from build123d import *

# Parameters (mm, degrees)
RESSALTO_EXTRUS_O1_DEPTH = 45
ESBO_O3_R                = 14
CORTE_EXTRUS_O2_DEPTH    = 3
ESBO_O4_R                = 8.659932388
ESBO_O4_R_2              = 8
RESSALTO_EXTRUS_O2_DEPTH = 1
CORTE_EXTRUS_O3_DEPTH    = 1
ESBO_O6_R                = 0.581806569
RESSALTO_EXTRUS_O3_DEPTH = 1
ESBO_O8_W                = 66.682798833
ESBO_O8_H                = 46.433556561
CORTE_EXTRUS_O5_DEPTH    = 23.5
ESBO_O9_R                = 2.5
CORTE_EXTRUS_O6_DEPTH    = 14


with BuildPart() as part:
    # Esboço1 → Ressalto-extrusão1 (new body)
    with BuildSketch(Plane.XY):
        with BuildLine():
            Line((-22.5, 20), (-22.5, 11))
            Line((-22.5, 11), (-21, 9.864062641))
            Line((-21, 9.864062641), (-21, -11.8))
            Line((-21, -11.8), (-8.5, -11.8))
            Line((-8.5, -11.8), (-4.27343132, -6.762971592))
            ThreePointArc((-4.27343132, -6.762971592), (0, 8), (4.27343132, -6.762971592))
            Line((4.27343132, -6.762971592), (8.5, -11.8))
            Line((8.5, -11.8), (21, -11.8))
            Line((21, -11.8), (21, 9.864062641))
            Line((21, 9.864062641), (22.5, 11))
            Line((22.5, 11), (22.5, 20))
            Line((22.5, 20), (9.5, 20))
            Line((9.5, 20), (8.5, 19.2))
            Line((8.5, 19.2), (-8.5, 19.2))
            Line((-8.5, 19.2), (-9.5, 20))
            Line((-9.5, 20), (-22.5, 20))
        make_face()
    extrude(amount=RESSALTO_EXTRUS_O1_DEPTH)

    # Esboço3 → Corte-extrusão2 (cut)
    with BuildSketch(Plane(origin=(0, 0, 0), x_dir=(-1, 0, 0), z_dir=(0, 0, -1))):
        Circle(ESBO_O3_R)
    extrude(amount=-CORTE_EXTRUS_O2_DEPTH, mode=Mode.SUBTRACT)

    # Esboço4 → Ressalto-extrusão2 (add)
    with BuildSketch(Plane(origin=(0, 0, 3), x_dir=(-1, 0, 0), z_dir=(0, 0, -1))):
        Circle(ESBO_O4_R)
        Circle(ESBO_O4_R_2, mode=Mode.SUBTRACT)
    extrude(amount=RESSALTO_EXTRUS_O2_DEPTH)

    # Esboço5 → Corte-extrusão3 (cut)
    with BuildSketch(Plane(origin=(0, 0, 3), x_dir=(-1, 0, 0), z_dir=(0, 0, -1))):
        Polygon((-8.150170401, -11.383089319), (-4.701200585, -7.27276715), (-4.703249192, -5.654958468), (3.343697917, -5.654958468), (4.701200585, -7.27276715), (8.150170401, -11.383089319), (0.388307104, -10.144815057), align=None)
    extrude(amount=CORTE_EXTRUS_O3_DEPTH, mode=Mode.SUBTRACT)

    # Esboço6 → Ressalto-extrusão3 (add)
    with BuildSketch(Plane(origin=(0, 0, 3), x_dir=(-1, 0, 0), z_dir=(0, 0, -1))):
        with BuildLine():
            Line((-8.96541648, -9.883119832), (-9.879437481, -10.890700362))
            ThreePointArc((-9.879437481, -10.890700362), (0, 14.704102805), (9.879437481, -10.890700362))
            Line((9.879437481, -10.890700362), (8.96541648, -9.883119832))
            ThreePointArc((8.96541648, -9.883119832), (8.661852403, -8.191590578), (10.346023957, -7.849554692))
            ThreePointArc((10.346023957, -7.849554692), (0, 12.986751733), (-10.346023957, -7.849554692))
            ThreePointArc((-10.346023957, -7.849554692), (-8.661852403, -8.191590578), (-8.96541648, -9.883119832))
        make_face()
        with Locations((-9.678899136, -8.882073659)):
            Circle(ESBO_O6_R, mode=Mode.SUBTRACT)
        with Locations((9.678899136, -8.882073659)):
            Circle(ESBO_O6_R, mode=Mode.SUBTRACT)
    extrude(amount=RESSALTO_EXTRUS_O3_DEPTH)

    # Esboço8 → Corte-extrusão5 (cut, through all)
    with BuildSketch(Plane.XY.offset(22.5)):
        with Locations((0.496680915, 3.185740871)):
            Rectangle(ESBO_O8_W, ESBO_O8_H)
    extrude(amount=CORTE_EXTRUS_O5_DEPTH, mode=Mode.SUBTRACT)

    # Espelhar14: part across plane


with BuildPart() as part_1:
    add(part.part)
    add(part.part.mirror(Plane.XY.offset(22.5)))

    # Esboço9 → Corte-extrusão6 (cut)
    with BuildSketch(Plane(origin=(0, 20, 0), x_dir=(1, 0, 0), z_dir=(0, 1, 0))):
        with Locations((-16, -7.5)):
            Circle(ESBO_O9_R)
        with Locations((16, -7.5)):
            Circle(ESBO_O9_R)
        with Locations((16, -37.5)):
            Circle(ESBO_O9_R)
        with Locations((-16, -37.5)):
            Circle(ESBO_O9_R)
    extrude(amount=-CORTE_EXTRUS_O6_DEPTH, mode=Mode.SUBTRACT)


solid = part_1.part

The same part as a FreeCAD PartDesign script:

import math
import FreeCAD as App
import Part
import Sketcher
from FreeCAD import Vector
Q = App.Units.Quantity

doc = App.newDocument("Part")
body = doc.addObject("PartDesign::Body", "Body")

# Sketch on XY plane
sketch1 = body.newObject("Sketcher::SketchObject", "Sketch")
sketch1.AttachmentSupport = (doc.getObject("XY_Plane"), [""])
sketch1.MapMode = "FlatFace"
sketch1.addGeometry(Part.LineSegment(Vector(-22.5, 20, 0), Vector(-22.5, 11, 0)), False)
sketch1.addGeometry(Part.LineSegment(Vector(-22.5, 11, 0), Vector(-21, 9.864063, 0)), False)
sketch1.addGeometry(Part.LineSegment(Vector(-21, 9.864063, 0), Vector(-21, -11.8, 0)), False)
sketch1.addGeometry(Part.LineSegment(Vector(-21, -11.8, 0), Vector(-8.5, -11.8, 0)), False)
sketch1.addGeometry(Part.LineSegment(Vector(-8.5, -11.8, 0), Vector(-4.273431, -6.762972, 0)), False)
sketch1.addGeometry(Part.ArcOfCircle(Part.Circle(Vector(0, 0, 0), Vector(0, 0, 1), 8), math.radians(-57.711755), math.radians(237.711755)), False)
sketch1.addGeometry(Part.LineSegment(Vector(4.273431, -6.762972, 0), Vector(8.5, -11.8, 0)), False)
sketch1.addGeometry(Part.LineSegment(Vector(8.5, -11.8, 0), Vector(21, -11.8, 0)), False)
sketch1.addGeometry(Part.LineSegment(Vector(21, -11.8, 0), Vector(21, 9.864063, 0)), False)
sketch1.addGeometry(Part.LineSegment(Vector(21, 9.864063, 0), Vector(22.5, 11, 0)), False)
sketch1.addGeometry(Part.LineSegment(Vector(22.5, 11, 0), Vector(22.5, 20, 0)), False)
sketch1.addGeometry(Part.LineSegment(Vector(22.5, 20, 0), Vector(9.5, 20, 0)), False)
sketch1.addGeometry(Part.LineSegment(Vector(9.5, 20, 0), Vector(8.5, 19.2, 0)), False)
sketch1.addGeometry(Part.LineSegment(Vector(8.5, 19.2, 0), Vector(-8.5, 19.2, 0)), False)
sketch1.addGeometry(Part.LineSegment(Vector(-8.5, 19.2, 0), Vector(-9.5, 20, 0)), False)
sketch1.addGeometry(Part.LineSegment(Vector(-9.5, 20, 0), Vector(-22.5, 20, 0)), False)
sketch1.addConstraint(Sketcher.Constraint("Coincident", 0, 2, 1, 1))
sketch1.addConstraint(Sketcher.Constraint("Coincident", 1, 2, 2, 1))
sketch1.addConstraint(Sketcher.Constraint("Coincident", 2, 2, 3, 1))
sketch1.addConstraint(Sketcher.Constraint("Coincident", 3, 2, 4, 1))
sketch1.addConstraint(Sketcher.Constraint("Coincident", 4, 2, 5, 2))
sketch1.addConstraint(Sketcher.Constraint("Coincident", 5, 1, 6, 1))
sketch1.addConstraint(Sketcher.Constraint("Coincident", 6, 2, 7, 1))
sketch1.addConstraint(Sketcher.Constraint("Coincident", 7, 2, 8, 1))
sketch1.addConstraint(Sketcher.Constraint("Coincident", 8, 2, 9, 1))
sketch1.addConstraint(Sketcher.Constraint("Coincident", 9, 2, 10, 1))
sketch1.addConstraint(Sketcher.Constraint("Coincident", 10, 2, 11, 1))
sketch1.addConstraint(Sketcher.Constraint("Coincident", 11, 2, 12, 1))
sketch1.addConstraint(Sketcher.Constraint("Coincident", 12, 2, 13, 1))
sketch1.addConstraint(Sketcher.Constraint("Coincident", 13, 2, 14, 1))
sketch1.addConstraint(Sketcher.Constraint("Coincident", 14, 2, 15, 1))
sketch1.addConstraint(Sketcher.Constraint("Coincident", 15, 2, 0, 1))
sketch1.addConstraint(Sketcher.Constraint("Vertical", 0))
sketch1.addConstraint(Sketcher.Constraint("Vertical", 2))
sketch1.addConstraint(Sketcher.Constraint("Horizontal", 3))
sketch1.addConstraint(Sketcher.Constraint("Horizontal", 7))
sketch1.addConstraint(Sketcher.Constraint("Vertical", 8))
sketch1.addConstraint(Sketcher.Constraint("Vertical", 10))
sketch1.addConstraint(Sketcher.Constraint("Horizontal", 11))
sketch1.addConstraint(Sketcher.Constraint("Horizontal", 13))
sketch1.addConstraint(Sketcher.Constraint("Horizontal", 15))
sketch1.addConstraint(Sketcher.Constraint("Coincident", 5, 3, -1, 1))
sketch1.addConstraint(Sketcher.Constraint("Symmetric", 3, 2, 6, 2, -2))
sketch1.addConstraint(Sketcher.Constraint("Symmetric", 1, 2, 8, 2, -2))
sketch1.addConstraint(Sketcher.Constraint("Symmetric", 0, 2, 9, 2, -2))
sketch1.addConstraint(Sketcher.Constraint("Symmetric", 11, 2, 14, 2, -2))
sketch1.addConstraint(Sketcher.Constraint("Horizontal", 4, 2, 5, 1))
sketch1.addConstraint(Sketcher.Constraint("Vertical", 6, 2, 12, 2))
sketch1.addConstraint(Sketcher.Constraint("Vertical", 3, 2, 13, 2))
sketch1.addConstraint(Sketcher.Constraint("Radius", 5, Q("8 mm")))
sketch1.addConstraint(Sketcher.Constraint("DistanceX", 11, 2, 11, 1, Q("13 mm")))
sketch1.addConstraint(Sketcher.Constraint("DistanceX", 13, 2, 13, 1, Q("17 mm")))
sketch1.addConstraint(Sketcher.Constraint("DistanceY", 0, 2, 0, 1, Q("9 mm")))
sketch1.addConstraint(Sketcher.Constraint("Angle", 4, Q("50 deg")))
sketch1.addConstraint(Sketcher.Constraint("DistanceX", 3, 1, 3, 2, Q("12.5 mm")))
sketch1.addConstraint(Sketcher.Constraint("DistanceY", -1, 1, 0, 2, Q("11 mm")))
sketch1.addConstraint(Sketcher.Constraint("DistanceX", 0, 2, 3, 2, Q("14 mm")))
sketch1.addConstraint(Sketcher.Constraint("DistanceY", 2, 2, -1, 1, Q("11.8 mm")))
sketch1.addConstraint(Sketcher.Constraint("DistanceY", -1, 1, 12, 2, Q("19.2 mm")))
sketch1.addConstraint(Sketcher.Constraint("DistanceY", 2, 2, 2, 1, Q("21.664063 mm")))
pad1 = body.newObject("PartDesign::Pad", "Pad")
pad1.Profile = sketch1
pad1.Length = 45

# Sketch on XY plane
sketch2 = body.newObject("Sketcher::SketchObject", "Sketch001")
sketch2.AttachmentSupport = (doc.getObject("XY_Plane"), [""])
sketch2.MapMode = "FlatFace"
sketch2.addGeometry(Part.Circle(Vector(0, 0, 0), Vector(0, 0, 1), 14), False)
sketch2.addConstraint(Sketcher.Constraint("Coincident", 0, 3, -1, 1))
sketch2.addConstraint(Sketcher.Constraint("Diameter", 0, Q("28 mm")))
pocket1 = body.newObject("PartDesign::Pocket", "Pocket")
pocket1.Profile = sketch2
pocket1.Length = 3
pocket1.Reversed = True

# Sketch on XY plane
sketch3 = body.newObject("Sketcher::SketchObject", "Sketch002")
sketch3.AttachmentSupport = (doc.getObject("XY_Plane"), [""])
sketch3.MapMode = "FlatFace"
sketch3.AttachmentOffset = App.Placement(Vector(0, 0, 3), App.Rotation())
sketch3.addGeometry(Part.Circle(Vector(0, 0, 0), Vector(0, 0, 1), 8.659932), False)
sketch3.addGeometry(Part.Circle(Vector(0, 0, 0), Vector(0, 0, 1), 8), False)
sketch3.addConstraint(Sketcher.Constraint("Coincident", 0, 3, -1, 1))
sketch3.addConstraint(Sketcher.Constraint("Coincident", 1, 3, -1, 1))
sketch3.addConstraint(Sketcher.Constraint("Diameter", 1, Q("16 mm")))
sketch3.addConstraint(Sketcher.Constraint("Diameter", 0, Q("17.319865 mm")))
pad2 = body.newObject("PartDesign::Pad", "Pad001")
pad2.Profile = sketch3
pad2.Length = 1
pad2.Reversed = True

# Sketch on XY plane
sketch4 = body.newObject("Sketcher::SketchObject", "Sketch003")
sketch4.AttachmentSupport = (doc.getObject("XY_Plane"), [""])
sketch4.MapMode = "FlatFace"
sketch4.AttachmentOffset = App.Placement(Vector(0, 0, 3), App.Rotation())
sketch4.addGeometry(Part.LineSegment(Vector(4.701201, -7.272767, 0), Vector(8.15017, -11.383089, 0)), False)
sketch4.addGeometry(Part.LineSegment(Vector(8.15017, -11.383089, 0), Vector(-0.388307, -10.144815, 0)), False)
sketch4.addGeometry(Part.LineSegment(Vector(-0.388307, -10.144815, 0), Vector(-8.15017, -11.383089, 0)), False)
sketch4.addGeometry(Part.LineSegment(Vector(-8.15017, -11.383089, 0), Vector(-4.701201, -7.272767, 0)), False)
sketch4.addGeometry(Part.LineSegment(Vector(-4.701201, -7.272767, 0), Vector(-3.343698, -5.654958, 0)), False)
sketch4.addGeometry(Part.LineSegment(Vector(-3.343698, -5.654958, 0), Vector(4.703249, -5.654958, 0)), False)
sketch4.addGeometry(Part.LineSegment(Vector(4.703249, -5.654958, 0), Vector(4.701201, -7.272767, 0)), False)
sketch4.addConstraint(Sketcher.Constraint("Coincident", 0, 2, 1, 1))
sketch4.addConstraint(Sketcher.Constraint("Coincident", 1, 2, 2, 1))
sketch4.addConstraint(Sketcher.Constraint("Coincident", 2, 2, 3, 1))
sketch4.addConstraint(Sketcher.Constraint("Coincident", 3, 2, 4, 1))
sketch4.addConstraint(Sketcher.Constraint("Coincident", 4, 2, 5, 1))
sketch4.addConstraint(Sketcher.Constraint("Coincident", 5, 2, 6, 1))
sketch4.addConstraint(Sketcher.Constraint("Coincident", 6, 2, 0, 1))
sketch4.addConstraint(Sketcher.Constraint("Horizontal", 5))
sketch4.addConstraint(Sketcher.Constraint("Symmetric", 0, 2, 2, 2, -2))
sketch4.addConstraint(Sketcher.Constraint("Symmetric", 3, 2, 6, 2, -2))
sketch4.addConstraint(Sketcher.Constraint("Parallel", 3, 4))
sketch4.addConstraint(Sketcher.Constraint("Angle", 0, Q("-50 deg")))
sketch4.addConstraint(Sketcher.Constraint("Distance", 1, Q("8.627799 mm")))
sketch4.addConstraint(Sketcher.Constraint("Distance", 4, Q("2.111899 mm")))
sketch4.addConstraint(Sketcher.Constraint("DistanceX", 3, 2, -1, 1, Q("4.701201 mm")))
sketch4.addConstraint(Sketcher.Constraint("DistanceX", 5, 1, 5, 2, Q("8.046947 mm")))
sketch4.addConstraint(Sketcher.Constraint("DistanceX", -1, 1, 0, 2, Q("8.15017 mm")))
sketch4.addConstraint(Sketcher.Constraint("DistanceY", 0, 2, -1, 1, Q("11.383089 mm")))
sketch4.addConstraint(Sketcher.Constraint("DistanceX", 4, 2, 1, 2, Q("2.955391 mm")))
pocket2 = body.newObject("PartDesign::Pocket", "Pocket001")
pocket2.Profile = sketch4
pocket2.Length = 1

# Sketch on XY plane
sketch5 = body.newObject("Sketcher::SketchObject", "Sketch004")
sketch5.AttachmentSupport = (doc.getObject("XY_Plane"), [""])
sketch5.MapMode = "FlatFace"
sketch5.AttachmentOffset = App.Placement(Vector(0, 0, 3), App.Rotation())
sketch5.addGeometry(Part.LineSegment(Vector(9.879437, -10.8907, 0), Vector(8.965416, -9.88312, 0)), False)
sketch5.addGeometry(Part.ArcOfCircle(Part.Circle(Vector(9.678899, -8.882074, 0), Vector(0, 0, 1), 1.229289), math.radians(57.132937), math.radians(234.521122)), False)
sketch5.addGeometry(Part.ArcOfCircle(Part.Circle(Vector(0, 0, 0), Vector(0, 0, 1), 12.986752), math.radians(-37.187683), math.radians(217.187683)), False)
sketch5.addGeometry(Part.ArcOfCircle(Part.Circle(Vector(-9.678899, -8.882074, 0), Vector(0, 0, 1), 1.229289), math.radians(-54.521122), math.radians(122.867063)), False)
sketch5.addGeometry(Part.LineSegment(Vector(-8.965416, -9.88312, 0), Vector(-9.879437, -10.8907, 0)), False)
sketch5.addGeometry(Part.ArcOfCircle(Part.Circle(Vector(0, 0, 0), Vector(0, 0, 1), 14.704103), math.radians(-47.787433), math.radians(227.787433)), False)
sketch5.addGeometry(Part.Circle(Vector(-9.678899, -8.882074, 0), Vector(0, 0, 1), 0.581807), False)
sketch5.addGeometry(Part.Circle(Vector(9.678899, -8.882074, 0), Vector(0, 0, 1), 0.581807), False)
sketch5.addConstraint(Sketcher.Constraint("Coincident", 0, 2, 1, 2))
sketch5.addConstraint(Sketcher.Constraint("Coincident", 1, 1, 2, 1))
sketch5.addConstraint(Sketcher.Constraint("Coincident", 2, 2, 3, 2))
sketch5.addConstraint(Sketcher.Constraint("Coincident", 3, 1, 4, 1))
sketch5.addConstraint(Sketcher.Constraint("Coincident", 4, 2, 5, 2))
sketch5.addConstraint(Sketcher.Constraint("Coincident", 5, 1, 0, 1))
sketch5.addConstraint(Sketcher.Constraint("Coincident", 2, 3, -1, 1))
sketch5.addConstraint(Sketcher.Constraint("Coincident", 5, 3, -1, 1))
sketch5.addConstraint(Sketcher.Constraint("Coincident", 6, 3, 3, 3))
sketch5.addConstraint(Sketcher.Constraint("Coincident", 7, 3, 1, 3))
sketch5.addConstraint(Sketcher.Constraint("Equal", 1, 3))
sketch5.addConstraint(Sketcher.Constraint("Equal", 6, 7))
sketch5.addConstraint(Sketcher.Constraint("Symmetric", 1, 3, 3, 3, -2))
sketch5.addConstraint(Sketcher.Constraint("Horizontal", 0, 2, 3, 1))
sketch5.addConstraint(Sketcher.Constraint("Horizontal", 4, 2, 5, 1))
sketch5.addConstraint(Sketcher.Constraint("Radius", 1, Q("1.229289 mm")))
sketch5.addConstraint(Sketcher.Constraint("Radius", 2, Q("12.986752 mm")))
sketch5.addConstraint(Sketcher.Constraint("Diameter", 6, Q("1.163613 mm")))
sketch5.addConstraint(Sketcher.Constraint("Radius", 5, Q("14.704103 mm")))
sketch5.addConstraint(Sketcher.Constraint("DistanceX", -1, 1, 1, 3, Q("9.678899 mm")))
sketch5.addConstraint(Sketcher.Constraint("DistanceY", 4, 2, -1, 1, Q("10.8907 mm")))
sketch5.addConstraint(Sketcher.Constraint("DistanceY", 0, 2, -1, 1, Q("9.88312 mm")))
sketch5.addConstraint(Sketcher.Constraint("DistanceY", 1, 3, 1, 1, Q("1.032519 mm")))
pad3 = body.newObject("PartDesign::Pad", "Pad002")
pad3.Profile = sketch5
pad3.Length = 1
pad3.Reversed = True

# Sketch on XY plane
sketch6 = body.newObject("Sketcher::SketchObject", "Sketch005")
sketch6.AttachmentSupport = (doc.getObject("XY_Plane"), [""])
sketch6.MapMode = "FlatFace"
sketch6.AttachmentOffset = App.Placement(Vector(0, 0, 22.5), App.Rotation())
sketch6.addGeometry(Part.LineSegment(Vector(-32.844719, 26.402519, 0), Vector(-32.844719, -20.031037, 0)), False)
sketch6.addGeometry(Part.LineSegment(Vector(-32.844719, -20.031037, 0), Vector(33.83808, -20.031037, 0)), False)
sketch6.addGeometry(Part.LineSegment(Vector(33.83808, -20.031037, 0), Vector(33.83808, 26.402519, 0)), False)
sketch6.addGeometry(Part.LineSegment(Vector(33.83808, 26.402519, 0), Vector(-32.844719, 26.402519, 0)), False)
sketch6.addConstraint(Sketcher.Constraint("Coincident", 0, 2, 1, 1))
sketch6.addConstraint(Sketcher.Constraint("Coincident", 1, 2, 2, 1))
sketch6.addConstraint(Sketcher.Constraint("Coincident", 2, 2, 3, 1))
sketch6.addConstraint(Sketcher.Constraint("Coincident", 3, 2, 0, 1))
sketch6.addConstraint(Sketcher.Constraint("Vertical", 0))
sketch6.addConstraint(Sketcher.Constraint("Horizontal", 1))
sketch6.addConstraint(Sketcher.Constraint("Vertical", 2))
sketch6.addConstraint(Sketcher.Constraint("Horizontal", 3))
sketch6.addConstraint(Sketcher.Constraint("DistanceX", 1, 1, 1, 2, Q("66.682799 mm")))
sketch6.addConstraint(Sketcher.Constraint("DistanceY", 0, 2, 0, 1, Q("46.433557 mm")))
sketch6.addConstraint(Sketcher.Constraint("DistanceX", 0, 2, -1, 1, Q("32.844719 mm")))
sketch6.addConstraint(Sketcher.Constraint("DistanceY", -1, 1, 2, 2, Q("26.402519 mm")))
pocket3 = body.newObject("PartDesign::Pocket", "Pocket002")
pocket3.Profile = sketch6
pocket3.Type = "ThroughAll"
pocket3.Reversed = True
body2 = doc.addObject("PartDesign::Body", "Body001")
doc.recompute()

body2.BaseFeature = body
doc.recompute()

mirroring = doc.addObject("Part::Mirroring", "Mirroring")
mirroring.Source = body
mirroring.Base = Vector(0, 0, 22.5)
mirroring.Normal = Vector(0, 0, 1)
body3 = doc.addObject("PartDesign::Body", "Body002")
body3.BaseFeature = mirroring
boolean = body2.newObject("PartDesign::Boolean", "Boolean")
boolean.Type = "Fuse"
boolean.addObjects([body3])
doc.recompute()

# Sketch on XZ plane
sketch7 = body2.newObject("Sketcher::SketchObject", "Sketch006")
sketch7.AttachmentSupport = (doc.getObject("XZ_Plane001"), [""])
sketch7.MapMode = "FlatFace"
sketch7.AttachmentOffset = App.Placement(Vector(0, 0, -20), App.Rotation())
sketch7.addGeometry(Part.Circle(Vector(-16, 7.5, 0), Vector(0, 0, 1), 2.5), False)
sketch7.addGeometry(Part.Circle(Vector(16, 7.5, 0), Vector(0, 0, 1), 2.5), False)
sketch7.addGeometry(Part.Circle(Vector(16, 37.5, 0), Vector(0, 0, 1), 2.5), False)
sketch7.addGeometry(Part.Circle(Vector(-16, 37.5, 0), Vector(0, 0, 1), 2.5), False)
sketch7.addConstraint(Sketcher.Constraint("Equal", 0, 1))
sketch7.addConstraint(Sketcher.Constraint("Equal", 1, 2))
sketch7.addConstraint(Sketcher.Constraint("Equal", 2, 3))
sketch7.addConstraint(Sketcher.Constraint("Symmetric", 0, 3, 1, 3, -2))
sketch7.addConstraint(Sketcher.Constraint("Symmetric", 2, 3, 3, 3, -2))
sketch7.addConstraint(Sketcher.Constraint("Vertical", 1, 3, 2, 3))
sketch7.addConstraint(Sketcher.Constraint("Diameter", 0, Q("5 mm")))
sketch7.addConstraint(Sketcher.Constraint("DistanceX", 0, 3, -1, 1, Q("16 mm")))
sketch7.addConstraint(Sketcher.Constraint("DistanceY", 1, 3, 2, 3, Q("30 mm")))
sketch7.addConstraint(Sketcher.Constraint("DistanceY", -1, 1, 0, 3, Q("7.5 mm")))
pocket4 = body2.newObject("PartDesign::Pocket", "Pocket003")
pocket4.Profile = sketch7
pocket4.Length = 14
pocket4.Reversed = True
mirroring.Visibility = False

doc.recompute()
